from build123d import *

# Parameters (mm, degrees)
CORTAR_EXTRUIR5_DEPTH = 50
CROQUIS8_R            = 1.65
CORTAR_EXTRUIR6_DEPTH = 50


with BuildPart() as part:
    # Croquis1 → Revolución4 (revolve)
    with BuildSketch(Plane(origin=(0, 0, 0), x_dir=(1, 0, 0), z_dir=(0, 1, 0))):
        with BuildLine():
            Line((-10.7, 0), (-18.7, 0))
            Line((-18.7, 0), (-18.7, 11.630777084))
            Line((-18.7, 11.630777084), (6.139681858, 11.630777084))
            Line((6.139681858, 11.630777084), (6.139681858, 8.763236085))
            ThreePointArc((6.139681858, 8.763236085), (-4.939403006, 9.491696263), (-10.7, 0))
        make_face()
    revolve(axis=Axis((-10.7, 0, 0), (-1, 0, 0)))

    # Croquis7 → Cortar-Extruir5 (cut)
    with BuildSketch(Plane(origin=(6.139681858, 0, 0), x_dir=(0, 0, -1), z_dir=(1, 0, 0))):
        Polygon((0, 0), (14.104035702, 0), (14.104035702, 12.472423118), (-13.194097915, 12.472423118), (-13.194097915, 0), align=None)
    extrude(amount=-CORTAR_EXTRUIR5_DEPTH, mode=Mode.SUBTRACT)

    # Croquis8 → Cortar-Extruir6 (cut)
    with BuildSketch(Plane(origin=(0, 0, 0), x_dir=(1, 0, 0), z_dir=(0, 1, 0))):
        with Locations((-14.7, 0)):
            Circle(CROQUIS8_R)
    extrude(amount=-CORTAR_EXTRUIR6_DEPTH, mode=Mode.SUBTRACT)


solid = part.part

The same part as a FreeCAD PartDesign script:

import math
import FreeCAD as App
import Part
import Sketcher

V = App.Vector
Q = App.Units.Quantity

doc = App.newDocument("Part")
body = doc.addObject("PartDesign::Body", "Body")

# Sketch on XZ plane
sketch1 = doc.addObject("Sketcher::SketchObject", "Sketch")
body.addObject(sketch1)
sketch1.AttachmentSupport = (doc.XZ_Plane, [""])
sketch1.MapMode = "FlatFace"
sketch1.addGeometry([
    Part.LineSegment(V(-18.7, 0, 0), V(-10.7, 0, 0)),  # 0
    Part.ArcOfCircle(Part.Circle(V(0, 0, 0), V(0, 0, 1), 10.7), math.radians(180), math.radians(305)),  # 1
    Part.LineSegment(V(6.1, -8.8, 0), V(6.1, -11.6, 0)),  # 2
    Part.LineSegment(V(6.1, -11.6, 0), V(-18.7, -11.6, 0)),  # 3
    Part.LineSegment(V(-18.7, -11.6, 0), V(-18.7, 0, 0)),  # 4
], False)
sketch1.addConstraint([
    Sketcher.Constraint("Coincident", 0, 2, 1, 1),
    Sketcher.Constraint("Coincident", 1, 2, 2, 1),
    Sketcher.Constraint("Coincident", 2, 2, 3, 1),
    Sketcher.Constraint("Coincident", 3, 2, 4, 1),
    Sketcher.Constraint("Coincident", 4, 2, 0, 1),
    Sketcher.Constraint("Horizontal", 0),
    Sketcher.Constraint("Vertical", 2),
    Sketcher.Constraint("Horizontal", 3),
    Sketcher.Constraint("Vertical", 4),
    Sketcher.Constraint("Coincident", 1, 3, -1, 1),
    Sketcher.Constraint("PointOnObject", 0, 2, -1),
    Sketcher.Constraint("Radius", 1, Q("10.7 mm")),
    Sketcher.Constraint("DistanceX", 0, 1, 0, 2, Q("8 mm")),
    Sketcher.Constraint("DistanceX", 3, 2, 3, 1, Q("24.839682 mm")),
    Sketcher.Constraint("DistanceY", 2, 2, 2, 1, Q("2.867541 mm")),
])
revolution = doc.addObject("PartDesign::Revolution", "Revolution")
body.addObject(revolution)
revolution.Profile = sketch1
revolution.ReferenceAxis = (sketch1, ["H_Axis"])
revolution.Angle = 360

# Sketch on YZ plane
sketch2 = doc.addObject("Sketcher::SketchObject", "Sketch001")
body.addObject(sketch2)
sketch2.AttachmentSupport = (doc.YZ_Plane, [""])
sketch2.MapMode = "FlatFace"
sketch2.AttachmentOffset = App.Placement(V(0, 0, 6.139682), App.Rotation())
sketch2.addGeometry([
    Part.LineSegment(V(0, -14, 0), V(12, -14, 0)),
    Part.LineSegment(V(12, -14, 0), V(12, 13, 0)),
    Part.LineSegment(V(12, 13, 0), V(0, 13, 0)),
    Part.LineSegment(V(0, 13, 0), V(0, -14, 0)),
], False)
sketch2.addConstraint([
    Sketcher.Constraint("Coincident", 0, 2, 1, 1),
    Sketcher.Constraint("Coincident", 1, 2, 2, 1),
    Sketcher.Constraint("Coincident", 2, 2, 3, 1),
    Sketcher.Constraint("Coincident", 3, 2, 0, 1),
    Sketcher.Constraint("Horizontal", 0),
    Sketcher.Constraint("Vertical", 1),
    Sketcher.Constraint("Horizontal", 2),
    Sketcher.Constraint("Vertical", 3),
    Sketcher.Constraint("PointOnObject", 2, 2, -2),
    Sketcher.Constraint("DistanceX", 0, 1, 0, 2, Q("12.472423 mm")),
    Sketcher.Constraint("DistanceY", 1, 1, 1, 2, Q("27.298134 mm")),
    Sketcher.Constraint("DistanceY", 0, 2, -1, 1, Q("14.104036 mm")),
])
pocket1 = doc.addObject("PartDesign::Pocket", "Pocket")
body.addObject(pocket1)
pocket1.Profile = sketch2
pocket1.Length = 50

# Sketch on XZ plane
sketch3 = doc.addObject("Sketcher::SketchObject", "Sketch002")
body.addObject(sketch3)
sketch3.AttachmentSupport = (doc.XZ_Plane, [""])
sketch3.MapMode = "FlatFace"
sketch3.addGeometry(Part.Circle(V(-14.7, 0, 0), V(0, 0, 1), 1.6), False)
sketch3.addConstraint([
    Sketcher.Constraint("PointOnObject", 0, 3, -1),
    Sketcher.Constraint("Diameter", 0, Q("3.3 mm")),
    Sketcher.Constraint("DistanceX", 0, 3, -1, 1, Q("14.7 mm")),
])
pocket2 = doc.addObject("PartDesign::Pocket", "Pocket001")
body.addObject(pocket2)
pocket2.Profile = sketch3
pocket2.Length = 50
pocket2.Reversed = True

doc.recompute()
